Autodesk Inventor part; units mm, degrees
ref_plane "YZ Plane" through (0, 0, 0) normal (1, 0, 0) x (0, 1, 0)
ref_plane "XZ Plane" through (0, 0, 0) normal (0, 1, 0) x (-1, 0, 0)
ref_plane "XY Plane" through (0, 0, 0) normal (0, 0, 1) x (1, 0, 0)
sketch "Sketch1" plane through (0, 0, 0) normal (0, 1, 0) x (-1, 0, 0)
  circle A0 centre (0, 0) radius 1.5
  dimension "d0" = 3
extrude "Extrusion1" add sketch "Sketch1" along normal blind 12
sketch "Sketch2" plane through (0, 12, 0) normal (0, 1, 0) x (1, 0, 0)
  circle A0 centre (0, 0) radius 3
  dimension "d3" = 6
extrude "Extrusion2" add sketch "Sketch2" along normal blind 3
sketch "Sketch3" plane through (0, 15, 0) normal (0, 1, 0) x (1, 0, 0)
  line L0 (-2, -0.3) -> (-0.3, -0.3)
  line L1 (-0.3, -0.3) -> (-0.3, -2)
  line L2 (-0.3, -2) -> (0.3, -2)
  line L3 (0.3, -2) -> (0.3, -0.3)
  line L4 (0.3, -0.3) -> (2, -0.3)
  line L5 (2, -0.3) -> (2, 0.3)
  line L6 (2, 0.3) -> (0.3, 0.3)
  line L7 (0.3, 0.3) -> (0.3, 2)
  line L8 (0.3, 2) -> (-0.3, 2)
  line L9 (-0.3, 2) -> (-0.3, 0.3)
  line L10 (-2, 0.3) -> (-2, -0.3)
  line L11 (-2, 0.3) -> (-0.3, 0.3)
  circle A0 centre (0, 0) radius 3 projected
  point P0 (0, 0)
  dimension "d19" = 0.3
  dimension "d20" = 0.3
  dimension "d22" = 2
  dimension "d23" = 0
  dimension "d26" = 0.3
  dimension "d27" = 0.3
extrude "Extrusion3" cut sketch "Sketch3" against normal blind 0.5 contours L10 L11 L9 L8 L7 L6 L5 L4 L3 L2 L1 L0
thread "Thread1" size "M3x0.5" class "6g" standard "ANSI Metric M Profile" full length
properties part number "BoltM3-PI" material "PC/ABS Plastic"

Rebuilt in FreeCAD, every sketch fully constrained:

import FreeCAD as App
import Part
import Sketcher
from FreeCAD import Vector
Q = App.Units.Quantity


def add_polygon(sketch, points):
    """Adds a closed chain of lines whose ends are joined by coincident constraints."""
    first, n = sketch.GeometryCount, len(points)
    for a, b in zip(points, points[1:] + points[:1]):
        sketch.addGeometry(Part.LineSegment(App.Vector(*a, 0), App.Vector(*b, 0)), False)
    for i in range(n):
        sketch.addConstraint(Sketcher.Constraint("Coincident", first + i, 2, first + (i + 1) % n, 1))

doc = App.newDocument("Part")
params = doc.addObject("Spreadsheet::Sheet", "Params")
for row, (alias, value) in enumerate([
    ("sketch1_diameter", "3 mm"),
    ("pad1_length", "12 mm"),
    ("sketch2_diameter", "6 mm"),
    ("pad2_length", "3 mm"),
    ("pocket1_length", "0.5 mm"),
], start=1):
    params.set(f"A{row}", alias)
    params.set(f"B{row}", "=" + value)
    params.setAlias(f"B{row}", alias)

body = doc.addObject("PartDesign::Body", "Body")

# Sketch on XZ plane
sketch1 = body.newObject("Sketcher::SketchObject", "Sketch")
sketch1.AttachmentSupport = (doc.getObject("XZ_Plane"), [""])
sketch1.MapMode = "FlatFace"
sketch1.addGeometry(Part.Circle(Vector(0, 0, 0), Vector(0, 0, 1), 1.5), False)
sketch1.addConstraint([
    Sketcher.Constraint("Coincident", 0, 3, -1, 1),
    Sketcher.Constraint("Diameter", 0, Q("3 mm")),
])
sketch1.setExpression("Constraints[1]", "Params.sketch1_diameter")
pad1 = body.newObject("PartDesign::Pad", "Pad")
pad1.Profile = sketch1
pad1.setExpression("Length", "Params.pad1_length")
pad1.Reversed = True

# Sketch on XZ plane
sketch2 = body.newObject("Sketcher::SketchObject", "Sketch001")
sketch2.AttachmentSupport = (doc.getObject("XZ_Plane"), [""])
sketch2.MapMode = "FlatFace"
sketch2.AttachmentOffset = App.Placement(Vector(0, 0, -12), App.Rotation())
sketch2.addGeometry(Part.Circle(Vector(0, 0, 0), Vector(0, 0, 1), 3), False)
sketch2.addConstraint([
    Sketcher.Constraint("Coincident", 0, 3, -1, 1),
    Sketcher.Constraint("Diameter", 0, Q("6 mm")),
])
sketch2.setExpression("Constraints[1]", "Params.sketch2_diameter")
pad2 = body.newObject("PartDesign::Pad", "Pad001")
pad2.Profile = sketch2
pad2.setExpression("Length", "Params.pad2_length")
pad2.Reversed = True

# Sketch on XZ plane
sketch3 = body.newObject("Sketcher::SketchObject", "Sketch002")
sketch3.AttachmentSupport = (doc.getObject("XZ_Plane"), [""])
sketch3.MapMode = "FlatFace"
sketch3.AttachmentOffset = App.Placement(Vector(0, 0, -15), App.Rotation())
add_polygon(sketch3, [(-2, -0.3), (-2, 0.3), (-0.3, 0.3), (-0.3, 2), (0.3, 2), (0.3, 0.3), (2, 0.3), (2, -0.3), (0.3, -0.3), (0.3, -2), (-0.3, -2), (-0.3, -0.3)])  # lines 0-11
sketch3.addConstraint([
    Sketcher.Constraint("Vertical", 0),
    Sketcher.Constraint("Horizontal", 1),
    Sketcher.Constraint("Vertical", 2),
    Sketcher.Constraint("Horizontal", 3),
    Sketcher.Constraint("Vertical", 4),
    Sketcher.Constraint("Horizontal", 5),
    Sketcher.Constraint("Vertical", 6),
    Sketcher.Constraint("Horizontal", 7),
    Sketcher.Constraint("Vertical", 8),
    Sketcher.Constraint("Horizontal", 9),
    Sketcher.Constraint("Vertical", 10),
    Sketcher.Constraint("Horizontal", 11),
    Sketcher.Constraint("Symmetric", 0, 2, 6, 2, -1, 1),
    Sketcher.Constraint("Symmetric", 2, 2, 8, 2, -1, 1),
    Sketcher.Constraint("Symmetric", 4, 2, 10, 2, -1, 1),
    Sketcher.Constraint("Symmetric", 1, 2, 4, 2, -2),
    Sketcher.Constraint("Equal", 9, 0),
    Sketcher.Constraint("Equal", 11, 2),
    Sketcher.Constraint("DistanceX", 0, 2, -1, 1, Q("2 mm")),
    Sketcher.Constraint("DistanceY", -1, 1, 0, 2, Q("0.3 mm")),
])
pocket1 = body.newObject("PartDesign::Pocket", "Pocket")
pocket1.Profile = sketch3
pocket1.setExpression("Length", "Params.pocket1_length")
pocket1.Reversed = True

doc.recompute()
